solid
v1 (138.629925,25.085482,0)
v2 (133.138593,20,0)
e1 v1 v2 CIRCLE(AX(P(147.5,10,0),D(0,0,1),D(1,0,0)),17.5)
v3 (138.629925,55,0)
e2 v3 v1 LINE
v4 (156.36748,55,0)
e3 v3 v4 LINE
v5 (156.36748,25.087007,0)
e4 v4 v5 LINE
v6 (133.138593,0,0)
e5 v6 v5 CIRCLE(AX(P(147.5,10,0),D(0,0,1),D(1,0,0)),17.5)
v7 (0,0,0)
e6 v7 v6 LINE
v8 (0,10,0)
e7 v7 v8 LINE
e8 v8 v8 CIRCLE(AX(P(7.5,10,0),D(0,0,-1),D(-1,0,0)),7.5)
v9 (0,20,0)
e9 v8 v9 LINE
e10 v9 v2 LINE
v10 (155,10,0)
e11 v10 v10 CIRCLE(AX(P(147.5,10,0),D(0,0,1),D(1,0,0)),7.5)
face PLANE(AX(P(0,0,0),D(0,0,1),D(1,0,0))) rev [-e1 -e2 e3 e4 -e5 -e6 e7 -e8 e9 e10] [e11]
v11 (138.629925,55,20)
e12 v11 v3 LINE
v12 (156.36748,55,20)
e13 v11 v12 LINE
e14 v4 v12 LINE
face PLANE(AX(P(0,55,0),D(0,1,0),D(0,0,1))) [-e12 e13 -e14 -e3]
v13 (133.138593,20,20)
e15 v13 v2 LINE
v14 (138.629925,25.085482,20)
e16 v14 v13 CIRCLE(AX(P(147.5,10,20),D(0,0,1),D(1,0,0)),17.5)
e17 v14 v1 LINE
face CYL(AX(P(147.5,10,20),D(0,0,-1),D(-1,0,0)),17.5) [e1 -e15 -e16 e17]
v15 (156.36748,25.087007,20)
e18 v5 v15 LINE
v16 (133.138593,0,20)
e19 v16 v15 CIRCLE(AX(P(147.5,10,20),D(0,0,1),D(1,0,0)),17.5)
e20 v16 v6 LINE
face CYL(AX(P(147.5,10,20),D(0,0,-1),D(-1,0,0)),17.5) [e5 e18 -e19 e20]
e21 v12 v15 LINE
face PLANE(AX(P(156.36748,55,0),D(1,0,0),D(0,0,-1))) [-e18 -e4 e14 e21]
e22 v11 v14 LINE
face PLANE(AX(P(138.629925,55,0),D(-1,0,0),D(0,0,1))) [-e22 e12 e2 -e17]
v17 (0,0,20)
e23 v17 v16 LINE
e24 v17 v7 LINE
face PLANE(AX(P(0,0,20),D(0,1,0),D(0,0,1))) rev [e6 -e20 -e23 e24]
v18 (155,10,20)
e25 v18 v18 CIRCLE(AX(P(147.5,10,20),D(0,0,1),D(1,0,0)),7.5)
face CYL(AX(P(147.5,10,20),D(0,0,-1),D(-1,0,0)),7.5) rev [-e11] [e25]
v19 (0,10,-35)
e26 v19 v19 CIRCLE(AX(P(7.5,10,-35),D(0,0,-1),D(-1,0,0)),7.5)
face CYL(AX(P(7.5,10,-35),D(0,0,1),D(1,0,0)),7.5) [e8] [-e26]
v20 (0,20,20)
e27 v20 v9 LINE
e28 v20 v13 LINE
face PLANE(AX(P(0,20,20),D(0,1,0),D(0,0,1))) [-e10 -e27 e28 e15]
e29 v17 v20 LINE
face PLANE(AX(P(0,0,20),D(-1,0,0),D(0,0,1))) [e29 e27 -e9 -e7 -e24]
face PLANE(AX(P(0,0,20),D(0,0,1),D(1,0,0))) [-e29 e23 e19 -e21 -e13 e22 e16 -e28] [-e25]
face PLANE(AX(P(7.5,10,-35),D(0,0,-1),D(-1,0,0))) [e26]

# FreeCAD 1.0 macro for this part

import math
import FreeCAD as App
import Part
import Sketcher

V = App.Vector
Q = App.Units.Quantity

doc = App.newDocument("Part")
body = doc.addObject("PartDesign::Body", "Body")

# Sketch on XY plane
sketch1 = doc.addObject("Sketcher::SketchObject", "Sketch")
body.addObject(sketch1)
sketch1.AttachmentSupport = (doc.XY_Plane, [""])
sketch1.MapMode = "FlatFace"
sketch1.addGeometry([
    Part.LineSegment(V(0, 0, 0), V(133, 0, 0)),  # 0
    Part.ArcOfCircle(Part.Circle(V(148, 10, 0), V(0, 0, 1), 18), math.radians(-145), math.radians(0)),  # 1
    Part.ArcOfCircle(Part.Circle(V(148, 10, 0), V(0, 0, 1), 18), math.radians(0), math.radians(145)),  # 2
    Part.LineSegment(V(133, 20, 0), V(0, 20, 0)),  # 3
    Part.LineSegment(V(0, 20, 0), V(0, 0, 0)),  # 4
    Part.ArcOfCircle(Part.Circle(V(148, 10, 0), V(0, 0, 1), 8), math.radians(90), math.radians(270)),  # 5
    Part.ArcOfCircle(Part.Circle(V(148, 10, 0), V(0, 0, 1), 8), math.radians(0), math.radians(90)),  # 6
    Part.ArcOfCircle(Part.Circle(V(148, 10, 0), V(0, 0, 1), 8), math.radians(-90), math.radians(0)),  # 7
], False)
sketch1.addConstraint([
    Sketcher.Constraint("Coincident", 0, 2, 1, 1),
    Sketcher.Constraint("Tangent", 1, 2, 2, 1),
    Sketcher.Constraint("Coincident", 2, 2, 3, 1),
    Sketcher.Constraint("Coincident", 3, 2, 4, 1),
    Sketcher.Constraint("Coincident", 4, 2, 0, 1),
    Sketcher.Constraint("Tangent", 5, 1, 6, 2),
    Sketcher.Constraint("Tangent", 6, 1, 7, 2),
    Sketcher.Constraint("Tangent", 7, 1, 5, 2),
    Sketcher.Constraint("Horizontal", 0),
    Sketcher.Constraint("Horizontal", 3),
    Sketcher.Constraint("Vertical", 4),
    Sketcher.Constraint("Coincident", 4, 2, -1, 1),
    Sketcher.Constraint("Coincident", 5, 3, 1, 3),
    Sketcher.Constraint("Equal", 1, 2),
    Sketcher.Constraint("Horizontal", 7, 3, 1, 2),
    Sketcher.Constraint("Horizontal", 1, 2, 6, 1),
    Sketcher.Constraint("Vertical", 0, 2, 2, 2),
    Sketcher.Constraint("Vertical", 7, 3, 5, 1),
    Sketcher.Constraint("Vertical", 5, 1, 7, 1),
    Sketcher.Constraint("Radius", 1, Q("17.5 mm")),
    Sketcher.Constraint("Radius", 5, Q("7.5 mm")),
    Sketcher.Constraint("DistanceY", 4, 2, 4, 1, Q("20 mm")),
    Sketcher.Constraint("DistanceX", -1, 1, 1, 2, Q("165 mm")),
])
pad1 = doc.addObject("PartDesign::Pad", "Pad")
body.addObject(pad1)
pad1.Profile = sketch1
pad1.Length = 20

# Sketch on XY plane
sketch2 = doc.addObject("Sketcher::SketchObject", "Sketch001")
body.addObject(sketch2)
sketch2.AttachmentSupport = (doc.XY_Plane, [""])
sketch2.MapMode = "FlatFace"
sketch2.addGeometry(Part.Circle(V(8, 10, 0), V(0, 0, 1), 8), False)
sketch2.addConstraint([
    Sketcher.Constraint("Diameter", 0, Q("15 mm")),
    Sketcher.Constraint("DistanceY", -1, 1, 0, 3, Q("10 mm")),
    Sketcher.Constraint("DistanceX", -1, 1, 0, 3, Q("7.5 mm")),
])
pad2 = doc.addObject("PartDesign::Pad", "Pad001")
body.addObject(pad2)
pad2.Profile = sketch2
pad2.Length = 35
pad2.Reversed = True

# Sketch on XZ plane
sketch3 = doc.addObject("Sketcher::SketchObject", "Sketch002")
body.addObject(sketch3)
sketch3.AttachmentSupport = (doc.XZ_Plane, [""])
sketch3.MapMode = "FlatFace"
sketch3.AttachmentOffset = App.Placement(V(0, 0, -25), App.Rotation())
sketch3.addGeometry([
    Part.LineSegment(V(139, 0, 0), V(139, 20, 0)),
    Part.LineSegment(V(139, 20, 0), V(156, 20, 0)),
    Part.LineSegment(V(156, 20, 0), V(156, 0, 0)),
    Part.LineSegment(V(156, 0, 0), V(139, 0, 0)),
], False)
sketch3.addConstraint([
    Sketcher.Constraint("Coincident", 0, 2, 1, 1),
    Sketcher.Constraint("Coincident", 1, 2, 2, 1),
    Sketcher.Constraint("Coincident", 2, 2, 3, 1),
    Sketcher.Constraint("Coincident", 3, 2, 0, 1),
    Sketcher.Constraint("Vertical", 0),
    Sketcher.Constraint("Horizontal", 1),
    Sketcher.Constraint("Vertical", 2),
    Sketcher.Constraint("Horizontal", 3),
    Sketcher.Constraint("PointOnObject", 2, 2, -1),
    Sketcher.Constraint("DistanceY", 0, 1, 0, 2, Q("20 mm")),
    Sketcher.Constraint("DistanceX", 1, 1, 1, 2, Q("17.737555 mm")),
    Sketcher.Constraint("DistanceX", -1, 1, 1, 2, Q("156.36748 mm")),
])
pad3 = doc.addObject("PartDesign::Pad", "Pad002")
body.addObject(pad3)
pad3.Profile = sketch3
pad3.Length = 30
pad3.Reversed = True

doc.recompute()
